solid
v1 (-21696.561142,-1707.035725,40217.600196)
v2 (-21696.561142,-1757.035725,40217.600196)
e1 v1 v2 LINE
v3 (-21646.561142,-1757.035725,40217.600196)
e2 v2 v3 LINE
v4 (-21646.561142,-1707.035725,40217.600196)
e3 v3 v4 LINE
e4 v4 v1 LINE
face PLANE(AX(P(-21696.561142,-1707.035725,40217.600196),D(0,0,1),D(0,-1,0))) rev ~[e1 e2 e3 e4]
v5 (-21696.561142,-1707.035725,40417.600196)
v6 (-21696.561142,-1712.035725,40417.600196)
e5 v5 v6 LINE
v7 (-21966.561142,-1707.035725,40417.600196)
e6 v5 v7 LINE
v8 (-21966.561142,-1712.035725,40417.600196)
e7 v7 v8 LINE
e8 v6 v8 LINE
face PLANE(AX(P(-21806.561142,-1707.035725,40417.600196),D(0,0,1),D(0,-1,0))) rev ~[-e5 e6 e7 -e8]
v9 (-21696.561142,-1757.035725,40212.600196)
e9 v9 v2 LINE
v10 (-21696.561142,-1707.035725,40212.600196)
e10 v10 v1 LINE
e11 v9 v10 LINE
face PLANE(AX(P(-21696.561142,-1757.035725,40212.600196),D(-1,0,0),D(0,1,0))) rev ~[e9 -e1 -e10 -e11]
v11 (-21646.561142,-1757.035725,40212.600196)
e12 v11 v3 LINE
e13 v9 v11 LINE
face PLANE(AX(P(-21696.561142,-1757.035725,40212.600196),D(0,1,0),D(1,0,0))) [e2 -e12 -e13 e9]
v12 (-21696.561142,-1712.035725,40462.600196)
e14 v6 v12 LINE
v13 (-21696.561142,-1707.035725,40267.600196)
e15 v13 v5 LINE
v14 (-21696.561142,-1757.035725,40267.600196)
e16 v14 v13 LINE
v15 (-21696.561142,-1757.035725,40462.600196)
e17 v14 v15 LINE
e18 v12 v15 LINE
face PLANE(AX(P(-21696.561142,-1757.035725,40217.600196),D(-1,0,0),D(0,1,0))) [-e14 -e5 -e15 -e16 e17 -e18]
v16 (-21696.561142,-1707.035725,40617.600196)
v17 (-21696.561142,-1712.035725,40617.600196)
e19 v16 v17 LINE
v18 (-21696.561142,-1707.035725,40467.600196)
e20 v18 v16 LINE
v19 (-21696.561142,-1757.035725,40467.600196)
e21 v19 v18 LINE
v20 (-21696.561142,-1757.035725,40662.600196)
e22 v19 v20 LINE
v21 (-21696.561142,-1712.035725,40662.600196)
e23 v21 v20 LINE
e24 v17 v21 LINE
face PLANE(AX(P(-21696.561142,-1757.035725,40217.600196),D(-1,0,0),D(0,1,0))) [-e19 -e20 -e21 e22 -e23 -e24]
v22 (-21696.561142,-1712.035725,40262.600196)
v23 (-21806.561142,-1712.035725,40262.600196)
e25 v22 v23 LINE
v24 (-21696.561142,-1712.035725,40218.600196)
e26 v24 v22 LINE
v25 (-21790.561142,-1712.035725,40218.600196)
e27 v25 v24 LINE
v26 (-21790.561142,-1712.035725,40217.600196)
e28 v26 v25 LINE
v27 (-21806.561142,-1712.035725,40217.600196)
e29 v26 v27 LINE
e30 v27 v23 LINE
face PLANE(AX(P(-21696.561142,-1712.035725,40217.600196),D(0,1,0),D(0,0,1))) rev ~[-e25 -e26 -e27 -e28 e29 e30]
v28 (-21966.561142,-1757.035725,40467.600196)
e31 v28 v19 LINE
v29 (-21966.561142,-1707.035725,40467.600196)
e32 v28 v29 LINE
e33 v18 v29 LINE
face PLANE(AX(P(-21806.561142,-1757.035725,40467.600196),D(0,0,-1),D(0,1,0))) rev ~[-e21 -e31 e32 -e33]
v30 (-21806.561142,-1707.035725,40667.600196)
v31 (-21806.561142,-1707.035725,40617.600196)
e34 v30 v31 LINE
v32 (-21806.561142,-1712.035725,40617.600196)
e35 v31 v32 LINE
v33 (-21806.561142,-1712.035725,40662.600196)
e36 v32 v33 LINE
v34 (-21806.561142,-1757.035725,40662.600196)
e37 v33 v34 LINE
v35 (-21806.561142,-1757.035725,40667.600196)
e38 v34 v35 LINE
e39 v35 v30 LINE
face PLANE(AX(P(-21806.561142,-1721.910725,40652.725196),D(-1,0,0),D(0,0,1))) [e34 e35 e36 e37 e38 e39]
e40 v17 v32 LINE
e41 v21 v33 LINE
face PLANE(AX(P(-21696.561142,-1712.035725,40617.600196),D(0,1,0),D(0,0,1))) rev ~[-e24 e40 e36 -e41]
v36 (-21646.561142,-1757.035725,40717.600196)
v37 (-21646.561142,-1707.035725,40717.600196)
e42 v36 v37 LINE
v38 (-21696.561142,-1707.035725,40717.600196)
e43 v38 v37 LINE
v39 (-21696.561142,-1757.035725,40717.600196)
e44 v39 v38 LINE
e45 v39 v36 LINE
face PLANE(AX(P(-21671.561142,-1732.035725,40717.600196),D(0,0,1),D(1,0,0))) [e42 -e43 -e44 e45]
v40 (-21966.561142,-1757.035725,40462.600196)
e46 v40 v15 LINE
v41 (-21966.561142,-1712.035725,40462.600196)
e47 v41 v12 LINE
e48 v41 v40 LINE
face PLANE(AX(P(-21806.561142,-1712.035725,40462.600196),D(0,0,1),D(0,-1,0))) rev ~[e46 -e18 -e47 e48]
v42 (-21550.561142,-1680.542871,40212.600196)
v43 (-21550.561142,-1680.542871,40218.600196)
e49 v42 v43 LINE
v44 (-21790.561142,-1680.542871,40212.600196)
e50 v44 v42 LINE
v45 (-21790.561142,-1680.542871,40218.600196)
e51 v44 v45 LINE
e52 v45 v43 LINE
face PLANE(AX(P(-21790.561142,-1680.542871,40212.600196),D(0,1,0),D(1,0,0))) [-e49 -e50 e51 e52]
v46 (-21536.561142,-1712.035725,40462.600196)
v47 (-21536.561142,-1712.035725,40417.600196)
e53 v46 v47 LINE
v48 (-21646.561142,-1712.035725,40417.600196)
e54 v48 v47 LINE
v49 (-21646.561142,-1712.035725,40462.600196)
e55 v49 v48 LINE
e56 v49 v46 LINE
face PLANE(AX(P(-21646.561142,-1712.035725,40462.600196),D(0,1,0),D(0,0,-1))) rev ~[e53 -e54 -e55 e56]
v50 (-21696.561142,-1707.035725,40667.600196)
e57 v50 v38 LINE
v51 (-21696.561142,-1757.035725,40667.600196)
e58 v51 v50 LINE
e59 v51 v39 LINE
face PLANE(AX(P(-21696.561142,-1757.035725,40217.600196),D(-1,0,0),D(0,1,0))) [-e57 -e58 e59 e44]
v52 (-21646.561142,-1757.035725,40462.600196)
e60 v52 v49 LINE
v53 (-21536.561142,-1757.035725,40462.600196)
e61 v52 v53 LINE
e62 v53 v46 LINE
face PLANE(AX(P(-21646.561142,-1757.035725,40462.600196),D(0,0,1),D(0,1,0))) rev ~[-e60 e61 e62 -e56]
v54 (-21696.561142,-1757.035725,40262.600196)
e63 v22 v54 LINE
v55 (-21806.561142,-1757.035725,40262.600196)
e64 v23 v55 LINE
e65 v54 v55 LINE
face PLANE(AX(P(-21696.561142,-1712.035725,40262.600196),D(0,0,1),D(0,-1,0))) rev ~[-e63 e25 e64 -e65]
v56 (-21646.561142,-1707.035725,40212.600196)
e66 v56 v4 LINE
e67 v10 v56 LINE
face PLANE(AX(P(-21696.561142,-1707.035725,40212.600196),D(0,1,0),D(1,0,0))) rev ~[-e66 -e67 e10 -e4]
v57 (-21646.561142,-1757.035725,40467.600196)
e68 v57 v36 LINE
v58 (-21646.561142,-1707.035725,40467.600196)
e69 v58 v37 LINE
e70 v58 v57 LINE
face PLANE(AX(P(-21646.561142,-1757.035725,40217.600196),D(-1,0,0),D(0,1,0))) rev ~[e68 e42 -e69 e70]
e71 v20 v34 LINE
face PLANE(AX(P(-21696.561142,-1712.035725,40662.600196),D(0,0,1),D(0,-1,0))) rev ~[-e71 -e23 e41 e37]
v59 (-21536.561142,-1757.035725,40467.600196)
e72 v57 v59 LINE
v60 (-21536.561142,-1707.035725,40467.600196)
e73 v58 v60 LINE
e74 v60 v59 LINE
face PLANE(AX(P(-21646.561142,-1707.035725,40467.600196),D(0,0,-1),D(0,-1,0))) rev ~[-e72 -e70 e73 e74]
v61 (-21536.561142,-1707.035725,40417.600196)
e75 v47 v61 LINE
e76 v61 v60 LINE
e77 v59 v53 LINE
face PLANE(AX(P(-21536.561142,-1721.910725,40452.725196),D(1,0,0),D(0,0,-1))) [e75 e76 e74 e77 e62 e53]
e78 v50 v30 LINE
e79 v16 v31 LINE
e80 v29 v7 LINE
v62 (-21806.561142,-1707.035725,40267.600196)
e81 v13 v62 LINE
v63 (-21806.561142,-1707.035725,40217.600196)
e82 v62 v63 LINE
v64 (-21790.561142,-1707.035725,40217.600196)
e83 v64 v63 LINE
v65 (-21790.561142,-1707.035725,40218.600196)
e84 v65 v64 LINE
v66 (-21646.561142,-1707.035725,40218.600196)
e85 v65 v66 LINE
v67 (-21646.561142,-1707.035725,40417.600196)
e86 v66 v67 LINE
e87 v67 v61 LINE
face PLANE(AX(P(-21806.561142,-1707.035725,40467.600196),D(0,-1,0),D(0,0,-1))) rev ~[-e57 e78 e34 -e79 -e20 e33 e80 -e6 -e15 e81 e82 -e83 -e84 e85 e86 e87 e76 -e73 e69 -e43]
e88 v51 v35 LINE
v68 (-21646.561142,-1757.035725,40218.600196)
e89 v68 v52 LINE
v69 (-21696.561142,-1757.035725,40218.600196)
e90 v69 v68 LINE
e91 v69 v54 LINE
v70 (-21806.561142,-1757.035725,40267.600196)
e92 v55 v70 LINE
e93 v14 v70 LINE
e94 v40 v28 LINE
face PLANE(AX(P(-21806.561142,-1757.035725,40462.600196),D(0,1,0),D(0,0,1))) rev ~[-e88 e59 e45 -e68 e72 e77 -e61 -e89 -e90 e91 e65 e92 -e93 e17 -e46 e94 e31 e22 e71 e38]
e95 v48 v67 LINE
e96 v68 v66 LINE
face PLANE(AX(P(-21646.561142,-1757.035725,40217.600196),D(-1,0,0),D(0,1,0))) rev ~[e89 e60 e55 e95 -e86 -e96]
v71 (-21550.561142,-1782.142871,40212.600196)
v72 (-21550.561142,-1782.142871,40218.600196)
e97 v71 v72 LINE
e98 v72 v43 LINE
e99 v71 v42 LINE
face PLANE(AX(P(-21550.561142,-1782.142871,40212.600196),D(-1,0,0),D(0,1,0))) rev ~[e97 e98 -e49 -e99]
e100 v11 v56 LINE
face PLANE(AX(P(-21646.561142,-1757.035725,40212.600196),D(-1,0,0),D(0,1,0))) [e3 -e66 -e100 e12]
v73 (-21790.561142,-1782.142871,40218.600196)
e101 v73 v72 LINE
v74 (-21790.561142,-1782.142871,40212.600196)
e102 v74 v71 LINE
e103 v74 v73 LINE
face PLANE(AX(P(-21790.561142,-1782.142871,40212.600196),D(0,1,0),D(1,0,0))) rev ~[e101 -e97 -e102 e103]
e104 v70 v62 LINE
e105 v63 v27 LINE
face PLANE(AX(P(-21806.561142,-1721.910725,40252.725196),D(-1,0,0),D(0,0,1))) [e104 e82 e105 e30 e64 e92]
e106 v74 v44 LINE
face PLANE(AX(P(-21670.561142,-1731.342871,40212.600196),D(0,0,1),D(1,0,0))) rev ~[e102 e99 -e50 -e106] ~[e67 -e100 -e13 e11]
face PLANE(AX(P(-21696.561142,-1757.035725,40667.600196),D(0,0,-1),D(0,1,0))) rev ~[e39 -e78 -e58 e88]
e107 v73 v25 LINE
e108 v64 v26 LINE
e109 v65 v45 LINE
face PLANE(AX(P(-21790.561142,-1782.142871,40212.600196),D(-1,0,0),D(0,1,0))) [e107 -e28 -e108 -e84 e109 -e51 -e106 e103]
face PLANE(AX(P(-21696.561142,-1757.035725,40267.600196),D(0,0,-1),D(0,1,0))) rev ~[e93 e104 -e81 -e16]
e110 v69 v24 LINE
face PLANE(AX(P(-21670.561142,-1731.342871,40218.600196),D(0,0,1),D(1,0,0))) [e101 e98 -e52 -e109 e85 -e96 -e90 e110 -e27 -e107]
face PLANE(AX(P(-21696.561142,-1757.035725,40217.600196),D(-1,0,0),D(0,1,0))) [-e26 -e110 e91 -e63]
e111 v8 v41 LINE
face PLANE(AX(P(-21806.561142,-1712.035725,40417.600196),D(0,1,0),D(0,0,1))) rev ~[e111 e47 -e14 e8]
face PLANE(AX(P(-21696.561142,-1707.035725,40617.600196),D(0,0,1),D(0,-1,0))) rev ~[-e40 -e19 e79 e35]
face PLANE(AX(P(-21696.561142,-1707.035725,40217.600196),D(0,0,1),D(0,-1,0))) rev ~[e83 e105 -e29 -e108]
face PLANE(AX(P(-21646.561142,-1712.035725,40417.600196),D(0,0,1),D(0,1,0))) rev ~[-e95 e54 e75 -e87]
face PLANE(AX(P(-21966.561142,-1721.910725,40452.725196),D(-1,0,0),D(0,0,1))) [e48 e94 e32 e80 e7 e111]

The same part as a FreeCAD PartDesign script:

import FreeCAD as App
import Part
import Sketcher
from FreeCAD import Vector


def add_polygon(sketch, points):
    """Adds a closed chain of lines whose ends are joined by coincident constraints."""
    first, n = sketch.GeometryCount, len(points)
    for a, b in zip(points, points[1:] + points[:1]):
        sketch.addGeometry(Part.LineSegment(App.Vector(*a, 0), App.Vector(*b, 0)), False)
    for i in range(n):
        sketch.addConstraint(Sketcher.Constraint("Coincident", first + i, 2, first + (i + 1) % n, 1))

doc = App.newDocument("Part")
params = doc.addObject("Spreadsheet::Sheet", "Params")
for row, (alias, value) in enumerate([
    ("sketch1_width", "50 mm"),
    ("pad1_length", "500 mm"),
    ("sketch2_width", "50 mm"),
    ("sketch2_width2", "45 mm"),
    ("pad2_length", "110 mm"),
    ("sketch3_width", "5 mm"),
    ("sketch3_width2", "45 mm"),
    ("pad3_length", "110 mm"),
    ("sketch4_width", "50 mm"),
    ("sketch4_width2", "5 mm"),
    ("pad4_length", "160 mm"),
    ("sketch5_width", "240 mm"),
    ("sketch5_width2", "50 mm"),
    ("sketch5_height", "101.6 mm"),
    ("pad5_length", "6 mm"),
], start=1):
    params.set(f"A{row}", alias)
    params.set(f"B{row}", "=" + value)
    params.setAlias(f"B{row}", alias)

body = doc.addObject("PartDesign::Body", "Body")

# Sketch on XY plane
sketch1 = doc.addObject("Sketcher::SketchObject", "Sketch")
body.addObject(sketch1)
sketch1.AttachmentSupport = (doc.XY_Plane, [""])
sketch1.MapMode = "FlatFace"
sketch1.AttachmentOffset = App.Placement(Vector(0, 0, 40217.600196), App.Rotation())
add_polygon(sketch1, [(-21696.561142, -1707.035725), (-21696.561142, -1757.035725), (-21646.561142, -1757.035725), (-21646.561142, -1707.035725)])  # lines 0-3
sketch1.addConstraint([
    Sketcher.Constraint("Vertical", 0),
    Sketcher.Constraint("Horizontal", 1),
    Sketcher.Constraint("Vertical", 2),
    Sketcher.Constraint("Horizontal", 3),
    Sketcher.Constraint("Equal", 3, 0),
    Sketcher.Constraint("DistanceX", 1, 1, 1, 2, 50.0),
    Sketcher.Constraint("DistanceX", 0, 2, -1, 1, 21696.561142),
    Sketcher.Constraint("DistanceY", 0, 2, -1, 1, 1757.035725),
])
sketch1.setExpression("Constraints[9]", "Params.sketch1_width")
pad1 = doc.addObject("PartDesign::Pad", "Pad")
body.addObject(pad1)
pad1.Profile = sketch1
pad1.setExpression("Length", "Params.pad1_length")

# Sketch on YZ plane
sketch2 = doc.addObject("Sketcher::SketchObject", "Sketch001")
body.addObject(sketch2)
sketch2.AttachmentSupport = (doc.YZ_Plane, [""])
sketch2.MapMode = "FlatFace"
sketch2.AttachmentOffset = App.Placement(Vector(0, 0, -21646.561142), App.Rotation())
add_polygon(sketch2, [(-1707.035725, 40467.600196), (-1757.035725, 40467.600196), (-1757.035725, 40462.600196), (-1712.035725, 40462.600196), (-1712.035725, 40417.600196), (-1707.035725, 40417.600196)])  # lines 0-5
sketch2.addConstraint([
    Sketcher.Constraint("Horizontal", 0),
    Sketcher.Constraint("Vertical", 1),
    Sketcher.Constraint("Horizontal", 2),
    Sketcher.Constraint("Vertical", 3),
    Sketcher.Constraint("Horizontal", 4),
    Sketcher.Constraint("Vertical", 5),
    Sketcher.Constraint("Equal", 4, 1),
    Sketcher.Constraint("Equal", 2, 3),
    Sketcher.Constraint("DistanceX", 0, 2, 0, 1, 50.0),
    Sketcher.Constraint("DistanceX", 2, 1, 2, 2, 45.0),
    Sketcher.Constraint("DistanceX", 0, 2, -1, 1, 1757.035725),
    Sketcher.Constraint("DistanceY", -1, 1, 0, 2, 40467.600196),
])
sketch2.setExpression("Constraints[14]", "Params.sketch2_width")
sketch2.setExpression("Constraints[15]", "Params.sketch2_width2")
pad2 = doc.addObject("PartDesign::Pad", "Pad001")
body.addObject(pad2)
pad2.Profile = sketch2
pad2.setExpression("Length", "Params.pad2_length")

# Sketch on YZ plane
sketch3 = doc.addObject("Sketcher::SketchObject", "Sketch002")
body.addObject(sketch3)
sketch3.AttachmentSupport = (doc.YZ_Plane, [""])
sketch3.MapMode = "FlatFace"
sketch3.AttachmentOffset = App.Placement(Vector(0, 0, -21696.561142), App.Rotation())
add_polygon(sketch3, [(-1707.035725, 40667.600196), (-1707.035725, 40617.600196), (-1712.035725, 40617.600196), (-1712.035725, 40662.600196), (-1757.035725, 40662.600196), (-1757.035725, 40667.600196)])  # lines 0-5
add_polygon(sketch3, [(-1757.035725, 40467.600196), (-1707.035725, 40467.600196), (-1707.035725, 40417.600196), (-1712.035725, 40417.600196), (-1712.035725, 40462.600196), (-1757.035725, 40462.600196)])  # lines 6-11
add_polygon(sketch3, [(-1757.035725, 40267.600196), (-1707.035725, 40267.600196), (-1707.035725, 40217.600196), (-1712.035725, 40217.600196), (-1712.035725, 40262.600196), (-1757.035725, 40262.600196)])  # lines 12-17
sketch3.addConstraint([
    Sketcher.Constraint("Vertical", 0),
    Sketcher.Constraint("Horizontal", 1),
    Sketcher.Constraint("Vertical", 2),
    Sketcher.Constraint("Horizontal", 3),
    Sketcher.Constraint("Vertical", 4),
    Sketcher.Constraint("Horizontal", 5),
    Sketcher.Constraint("Horizontal", 6),
    Sketcher.Constraint("Vertical", 7),
    Sketcher.Constraint("Horizontal", 8),
    Sketcher.Constraint("Vertical", 9),
    Sketcher.Constraint("Horizontal", 10),
    Sketcher.Constraint("Vertical", 11),
    Sketcher.Constraint("Horizontal", 12),
    Sketcher.Constraint("Vertical", 13),
    Sketcher.Constraint("Horizontal", 14),
    Sketcher.Constraint("Vertical", 15),
    Sketcher.Constraint("Horizontal", 16),
    Sketcher.Constraint("Vertical", 17),
    Sketcher.Constraint("Vertical", 5, 2, 6, 2),
    Sketcher.Constraint("Vertical", 2, 2, 8, 2),
    Sketcher.Constraint("Vertical", 4, 2, 10, 2),
    Sketcher.Constraint("Vertical", 7, 2, 12, 2),
    Sketcher.Constraint("Vertical", 9, 2, 14, 2),
    Sketcher.Constraint("Vertical", 11, 2, 16, 2),
    Sketcher.Constraint("Equal", 12, 0),
    Sketcher.Constraint("Equal", 16, 2),
    Sketcher.Constraint("Equal", 0, 7),
    Sketcher.Constraint("Equal", 2, 9),
    Sketcher.Constraint("Equal", 7, 13),
    Sketcher.Constraint("Equal", 9, 15),
    Sketcher.Constraint("DistanceX", 1, 2, 1, 1, 5.0),
    Sketcher.Constraint("DistanceX", 3, 2, 3, 1, 45.0),
    Sketcher.Constraint("DistanceY", 6, 2, 0, 2, 150.0),
    Sketcher.Constraint("DistanceY", 12, 2, 7, 2, 150.0),
    Sketcher.Constraint("DistanceX", 0, 2, -1, 1, 1707.035725),
    Sketcher.Constraint("DistanceY", -1, 1, 0, 2, 40617.600196),
])
sketch3.setExpression("Constraints[48]", "Params.sketch3_width")
sketch3.setExpression("Constraints[49]", "Params.sketch3_width2")
pad3 = doc.addObject("PartDesign::Pad", "Pad002")
body.addObject(pad3)
pad3.Profile = sketch3
pad3.setExpression("Length", "Params.pad3_length")
pad3.Reversed = True

# Sketch on YZ plane
sketch4 = doc.addObject("Sketcher::SketchObject", "Sketch003")
body.addObject(sketch4)
sketch4.AttachmentSupport = (doc.YZ_Plane, [""])
sketch4.MapMode = "FlatFace"
sketch4.AttachmentOffset = App.Placement(Vector(0, 0, -21806.561142), App.Rotation())
add_polygon(sketch4, [(-1757.035725, 40467.600196), (-1707.035725, 40467.600196), (-1707.035725, 40417.600196), (-1712.035725, 40417.600196), (-1712.035725, 40462.600196), (-1757.035725, 40462.600196)])  # lines 0-5
sketch4.addConstraint([
    Sketcher.Constraint("Horizontal", 0),
    Sketcher.Constraint("Vertical", 1),
    Sketcher.Constraint("Horizontal", 2),
    Sketcher.Constraint("Vertical", 3),
    Sketcher.Constraint("Horizontal", 4),
    Sketcher.Constraint("Vertical", 5),
    Sketcher.Constraint("Equal", 0, 1),
    Sketcher.Constraint("Equal", 4, 3),
    Sketcher.Constraint("DistanceX", 0, 1, 0, 2, 50.0),
    Sketcher.Constraint("DistanceX", 2, 2, 2, 1, 5.0),
    Sketcher.Constraint("DistanceX", 0, 2, -1, 1, 1707.035725),
    Sketcher.Constraint("DistanceY", -1, 1, 0, 2, 40467.600196),
])
sketch4.setExpression("Constraints[14]", "Params.sketch4_width")
sketch4.setExpression("Constraints[15]", "Params.sketch4_width2")
pad4 = doc.addObject("PartDesign::Pad", "Pad003")
body.addObject(pad4)
pad4.Profile = sketch4
pad4.setExpression("Length", "Params.pad4_length")
pad4.Reversed = True

# Sketch on XY plane
sketch5 = doc.addObject("Sketcher::SketchObject", "Sketch004")
body.addObject(sketch5)
sketch5.AttachmentSupport = (doc.XY_Plane, [""])
sketch5.MapMode = "FlatFace"
sketch5.AttachmentOffset = App.Placement(Vector(0, 0, 40212.600196), App.Rotation())
add_polygon(sketch5, [(-21790.561142, -1680.542871), (-21790.561142, -1782.142871), (-21550.561142, -1782.142871), (-21550.561142, -1680.542871)])  # lines 0-3
add_polygon(sketch5, [(-21646.561142, -1757.035725), (-21696.561142, -1757.035725), (-21696.561142, -1707.035725), (-21646.561142, -1707.035725)])  # lines 4-7
sketch5.addConstraint([
    Sketcher.Constraint("Vertical", 0),
    Sketcher.Constraint("Horizontal", 1),
    Sketcher.Constraint("Vertical", 2),
    Sketcher.Constraint("Horizontal", 3),
    Sketcher.Constraint("Horizontal", 4),
    Sketcher.Constraint("Vertical", 5),
    Sketcher.Constraint("Horizontal", 6),
    Sketcher.Constraint("Vertical", 7),
    Sketcher.Constraint("Equal", 6, 5),
    Sketcher.Constraint("DistanceX", 1, 1, 1, 2, 240.0),
    Sketcher.Constraint("DistanceX", 4, 2, 4, 1, 50.0),
    Sketcher.Constraint("DistanceY", 0, 2, 0, 1, 101.6),
    Sketcher.Constraint("DistanceX", 0, 2, 4, 2, 94.0),
    Sketcher.Constraint("DistanceX", 0, 2, -1, 1, 21790.561142),
    Sketcher.Constraint("DistanceY", 0, 2, -1, 1, 1782.142871),
    Sketcher.Constraint("DistanceY", 4, 2, -1, 1, 1757.035725),
])
sketch5.setExpression("Constraints[17]", "Params.sketch5_width")
sketch5.setExpression("Constraints[18]", "Params.sketch5_width2")
sketch5.setExpression("Constraints[19]", "Params.sketch5_height")
pad5 = doc.addObject("PartDesign::Pad", "Pad004")
body.addObject(pad5)
pad5.Profile = sketch5
pad5.setExpression("Length", "Params.pad5_length")

doc.recompute()
